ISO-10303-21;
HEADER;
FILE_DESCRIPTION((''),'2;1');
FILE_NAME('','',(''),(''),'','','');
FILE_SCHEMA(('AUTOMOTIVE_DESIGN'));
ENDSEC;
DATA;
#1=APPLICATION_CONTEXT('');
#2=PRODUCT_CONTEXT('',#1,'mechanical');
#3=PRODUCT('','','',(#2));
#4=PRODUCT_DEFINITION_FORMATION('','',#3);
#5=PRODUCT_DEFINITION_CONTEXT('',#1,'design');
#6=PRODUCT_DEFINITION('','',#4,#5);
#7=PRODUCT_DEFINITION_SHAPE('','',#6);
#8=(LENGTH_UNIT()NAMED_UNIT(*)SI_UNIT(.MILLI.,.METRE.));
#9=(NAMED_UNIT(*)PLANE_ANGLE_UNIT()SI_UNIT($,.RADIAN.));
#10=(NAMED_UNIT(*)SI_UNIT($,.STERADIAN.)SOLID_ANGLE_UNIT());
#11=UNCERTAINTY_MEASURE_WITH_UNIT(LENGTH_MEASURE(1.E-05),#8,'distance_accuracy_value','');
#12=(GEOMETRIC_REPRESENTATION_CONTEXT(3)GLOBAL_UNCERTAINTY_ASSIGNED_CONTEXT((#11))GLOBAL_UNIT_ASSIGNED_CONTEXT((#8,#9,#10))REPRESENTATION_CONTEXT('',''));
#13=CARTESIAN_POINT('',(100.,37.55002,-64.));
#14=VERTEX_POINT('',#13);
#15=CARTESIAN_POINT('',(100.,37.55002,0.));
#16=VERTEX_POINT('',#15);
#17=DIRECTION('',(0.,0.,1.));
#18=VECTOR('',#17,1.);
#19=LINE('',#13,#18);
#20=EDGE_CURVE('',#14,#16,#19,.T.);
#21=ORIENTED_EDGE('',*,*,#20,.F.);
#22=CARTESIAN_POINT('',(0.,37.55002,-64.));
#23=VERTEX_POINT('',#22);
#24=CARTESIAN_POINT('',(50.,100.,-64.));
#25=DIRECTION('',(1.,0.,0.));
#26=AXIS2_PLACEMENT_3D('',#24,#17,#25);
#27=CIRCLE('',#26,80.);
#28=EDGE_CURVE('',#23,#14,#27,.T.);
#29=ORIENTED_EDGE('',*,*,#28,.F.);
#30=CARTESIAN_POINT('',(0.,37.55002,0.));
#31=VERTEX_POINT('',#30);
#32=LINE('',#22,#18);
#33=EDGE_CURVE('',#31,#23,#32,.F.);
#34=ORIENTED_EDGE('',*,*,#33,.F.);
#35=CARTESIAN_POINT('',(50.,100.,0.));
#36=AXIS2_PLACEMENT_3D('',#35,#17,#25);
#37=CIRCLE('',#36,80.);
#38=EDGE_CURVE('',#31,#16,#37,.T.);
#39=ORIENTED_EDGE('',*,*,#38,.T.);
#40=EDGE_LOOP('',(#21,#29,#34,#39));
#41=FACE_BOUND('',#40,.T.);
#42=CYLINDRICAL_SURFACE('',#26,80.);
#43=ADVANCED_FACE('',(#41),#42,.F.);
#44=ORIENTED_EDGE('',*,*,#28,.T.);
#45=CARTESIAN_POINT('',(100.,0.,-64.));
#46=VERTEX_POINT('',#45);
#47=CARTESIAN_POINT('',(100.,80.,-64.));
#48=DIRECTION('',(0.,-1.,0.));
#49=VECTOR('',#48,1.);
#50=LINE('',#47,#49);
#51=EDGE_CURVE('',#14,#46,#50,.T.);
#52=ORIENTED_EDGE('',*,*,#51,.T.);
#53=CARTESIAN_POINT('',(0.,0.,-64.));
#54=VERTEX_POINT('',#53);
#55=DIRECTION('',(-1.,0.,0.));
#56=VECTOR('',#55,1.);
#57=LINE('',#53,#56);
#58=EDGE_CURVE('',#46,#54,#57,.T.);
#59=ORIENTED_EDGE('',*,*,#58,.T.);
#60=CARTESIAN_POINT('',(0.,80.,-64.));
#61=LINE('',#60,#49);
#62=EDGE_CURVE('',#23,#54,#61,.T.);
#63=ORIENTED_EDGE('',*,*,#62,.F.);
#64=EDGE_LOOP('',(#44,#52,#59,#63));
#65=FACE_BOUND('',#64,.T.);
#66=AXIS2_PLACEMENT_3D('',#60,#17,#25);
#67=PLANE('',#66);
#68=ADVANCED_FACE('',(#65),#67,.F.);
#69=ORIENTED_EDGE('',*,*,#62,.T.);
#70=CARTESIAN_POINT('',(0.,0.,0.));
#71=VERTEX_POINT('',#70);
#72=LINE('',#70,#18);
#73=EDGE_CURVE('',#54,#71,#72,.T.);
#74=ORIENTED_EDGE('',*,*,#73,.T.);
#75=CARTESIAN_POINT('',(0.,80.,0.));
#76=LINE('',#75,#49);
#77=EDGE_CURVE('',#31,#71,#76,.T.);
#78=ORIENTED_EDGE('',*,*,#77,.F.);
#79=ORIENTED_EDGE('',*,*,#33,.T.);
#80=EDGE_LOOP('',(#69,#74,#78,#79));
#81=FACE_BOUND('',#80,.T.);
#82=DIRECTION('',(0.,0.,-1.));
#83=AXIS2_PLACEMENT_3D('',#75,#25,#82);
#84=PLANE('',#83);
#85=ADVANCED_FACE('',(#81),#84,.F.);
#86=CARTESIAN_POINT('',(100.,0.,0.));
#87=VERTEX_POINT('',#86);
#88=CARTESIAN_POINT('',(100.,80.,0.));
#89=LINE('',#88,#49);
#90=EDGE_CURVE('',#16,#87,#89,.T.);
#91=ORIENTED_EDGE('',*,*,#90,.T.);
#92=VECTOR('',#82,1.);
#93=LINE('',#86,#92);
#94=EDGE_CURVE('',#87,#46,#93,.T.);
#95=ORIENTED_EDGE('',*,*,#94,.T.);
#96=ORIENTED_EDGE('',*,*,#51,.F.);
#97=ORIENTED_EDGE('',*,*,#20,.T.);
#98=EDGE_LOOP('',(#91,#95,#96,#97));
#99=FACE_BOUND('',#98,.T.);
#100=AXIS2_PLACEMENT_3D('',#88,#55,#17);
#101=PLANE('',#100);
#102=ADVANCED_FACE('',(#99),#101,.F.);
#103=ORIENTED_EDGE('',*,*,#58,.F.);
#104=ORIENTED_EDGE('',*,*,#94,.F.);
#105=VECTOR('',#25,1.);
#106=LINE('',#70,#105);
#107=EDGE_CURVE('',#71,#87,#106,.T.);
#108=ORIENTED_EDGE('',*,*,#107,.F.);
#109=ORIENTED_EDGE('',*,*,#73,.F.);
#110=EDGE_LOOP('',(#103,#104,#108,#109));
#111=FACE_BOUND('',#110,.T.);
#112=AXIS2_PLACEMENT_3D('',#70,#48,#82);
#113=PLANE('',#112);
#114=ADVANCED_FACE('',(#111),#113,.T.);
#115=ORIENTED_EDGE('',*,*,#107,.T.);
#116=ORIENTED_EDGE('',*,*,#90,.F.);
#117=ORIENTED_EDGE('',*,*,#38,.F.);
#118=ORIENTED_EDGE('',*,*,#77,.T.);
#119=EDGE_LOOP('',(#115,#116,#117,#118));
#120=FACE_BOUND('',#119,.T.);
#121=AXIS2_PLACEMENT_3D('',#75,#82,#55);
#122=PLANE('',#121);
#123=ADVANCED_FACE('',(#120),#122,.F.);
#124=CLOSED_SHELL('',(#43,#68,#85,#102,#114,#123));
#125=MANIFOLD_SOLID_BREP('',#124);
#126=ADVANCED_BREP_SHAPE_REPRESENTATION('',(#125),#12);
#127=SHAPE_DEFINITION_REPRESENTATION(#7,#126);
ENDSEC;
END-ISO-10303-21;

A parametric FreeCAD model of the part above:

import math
import FreeCAD as App
import Part
import Sketcher

V = App.Vector
Q = App.Units.Quantity


def add_polygon(sketch, points):
    """Adds a closed chain of lines whose ends are joined by coincident constraints."""
    first, n = sketch.GeometryCount, len(points)
    for a, b in zip(points, points[1:] + points[:1]):
        sketch.addGeometry(Part.LineSegment(App.Vector(*a, 0), App.Vector(*b, 0)), False)
    for i in range(n):
        sketch.addConstraint(Sketcher.Constraint("Coincident", first + i, 2, first + (i + 1) % n, 1))

doc = App.newDocument("Part")
body = doc.addObject("PartDesign::Body", "Body")

sketch1 = body.newObject("Sketcher::SketchObject", "Sketch")
sketch1.AttachmentSupport = (doc.getObject("XZ_Plane"), [""])
sketch1.MapMode = "FlatFace"
add_polygon(sketch1, [(0, -64), (0, 0), (100, 0), (100, -64)])
sketch1.addConstraint(Sketcher.Constraint("Vertical", 0))
sketch1.addConstraint(Sketcher.Constraint("Horizontal", 1))
sketch1.addConstraint(Sketcher.Constraint("Vertical", 2))
sketch1.addConstraint(Sketcher.Constraint("Horizontal", 3))
sketch1.addConstraint(Sketcher.Constraint("Coincident", 0, 2, -1, 1))
sketch1.addConstraint(Sketcher.Constraint("DistanceX", 1, 1, 1, 2, Q("100 mm")))
sketch1.addConstraint(Sketcher.Constraint("DistanceY", 0, 1, 0, 2, Q("64 mm")))
pad1 = body.newObject("PartDesign::Pad", "Pad")
pad1.Profile = sketch1
pad1.Length = 80
pad1.Reversed = True

sketch2 = body.newObject("Sketcher::SketchObject", "Sketch001")
sketch2.AttachmentSupport = (doc.getObject("XY_Plane"), [""])
sketch2.MapMode = "FlatFace"
sketch2.addGeometry(Part.LineSegment(V(130, 100, 0), V(-30, 100, 0)), False)
sketch2.addGeometry(Part.ArcOfCircle(Part.Circle(V(50, 100, 0), V(0, 0, 1), 80), math.radians(180), math.radians(360)), False)
sketch2.addConstraint(Sketcher.Constraint("Coincident", 0, 1, 1, 2))
sketch2.addConstraint(Sketcher.Constraint("Coincident", 1, 1, 0, 2))
sketch2.addConstraint(Sketcher.Constraint("Horizontal", 0))
sketch2.addConstraint(Sketcher.Constraint("Horizontal", 1, 3, 0, 1))
sketch2.addConstraint(Sketcher.Constraint("Radius", 1, Q("80 mm")))
sketch2.addConstraint(Sketcher.Constraint("DistanceX", -1, 1, 1, 3, Q("50 mm")))
sketch2.addConstraint(Sketcher.Constraint("DistanceY", -1, 1, 1, 3, Q("100 mm")))
pocket1 = body.newObject("PartDesign::Pocket", "Pocket")
pocket1.Profile = sketch2
pocket1.Type = "ThroughAll"

doc.recompute()
